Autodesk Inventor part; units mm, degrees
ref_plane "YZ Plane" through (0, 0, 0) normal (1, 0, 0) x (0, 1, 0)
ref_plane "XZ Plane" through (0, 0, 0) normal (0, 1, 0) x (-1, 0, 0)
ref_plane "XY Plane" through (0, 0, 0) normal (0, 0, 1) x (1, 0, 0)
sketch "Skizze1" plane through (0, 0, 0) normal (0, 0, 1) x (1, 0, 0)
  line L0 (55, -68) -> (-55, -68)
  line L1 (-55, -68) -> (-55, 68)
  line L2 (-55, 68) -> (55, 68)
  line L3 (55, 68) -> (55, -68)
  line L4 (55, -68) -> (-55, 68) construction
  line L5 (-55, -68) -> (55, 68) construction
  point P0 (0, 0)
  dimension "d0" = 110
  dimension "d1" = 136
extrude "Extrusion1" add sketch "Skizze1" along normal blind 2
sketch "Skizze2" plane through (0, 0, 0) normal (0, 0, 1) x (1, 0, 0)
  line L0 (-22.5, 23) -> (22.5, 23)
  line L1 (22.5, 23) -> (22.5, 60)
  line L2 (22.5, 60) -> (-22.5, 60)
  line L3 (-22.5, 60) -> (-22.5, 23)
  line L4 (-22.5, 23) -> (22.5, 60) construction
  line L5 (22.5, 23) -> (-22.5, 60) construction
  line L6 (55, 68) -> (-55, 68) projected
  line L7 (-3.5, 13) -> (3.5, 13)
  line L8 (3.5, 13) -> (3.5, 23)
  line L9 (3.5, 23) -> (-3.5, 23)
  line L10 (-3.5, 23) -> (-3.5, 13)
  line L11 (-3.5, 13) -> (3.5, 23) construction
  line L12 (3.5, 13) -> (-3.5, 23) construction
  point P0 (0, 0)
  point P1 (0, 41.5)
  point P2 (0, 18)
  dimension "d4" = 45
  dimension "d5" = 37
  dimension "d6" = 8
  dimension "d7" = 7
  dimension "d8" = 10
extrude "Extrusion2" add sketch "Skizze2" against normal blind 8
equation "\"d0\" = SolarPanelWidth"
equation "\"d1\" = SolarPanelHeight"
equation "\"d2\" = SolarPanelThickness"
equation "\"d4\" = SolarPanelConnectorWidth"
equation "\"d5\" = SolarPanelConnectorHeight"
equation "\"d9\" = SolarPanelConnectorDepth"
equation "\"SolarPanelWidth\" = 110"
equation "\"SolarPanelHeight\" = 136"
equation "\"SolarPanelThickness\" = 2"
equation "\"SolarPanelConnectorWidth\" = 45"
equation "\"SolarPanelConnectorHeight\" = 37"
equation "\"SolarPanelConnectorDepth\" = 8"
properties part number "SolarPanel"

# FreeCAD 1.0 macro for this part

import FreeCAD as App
import Part
import Sketcher


def add_polygon(sketch, points):
    """Adds a closed chain of lines whose ends are joined by coincident constraints."""
    first, n = sketch.GeometryCount, len(points)
    for a, b in zip(points, points[1:] + points[:1]):
        sketch.addGeometry(Part.LineSegment(App.Vector(*a, 0), App.Vector(*b, 0)), False)
    for i in range(n):
        sketch.addConstraint(Sketcher.Constraint("Coincident", first + i, 2, first + (i + 1) % n, 1))

doc = App.newDocument("Part")
body = doc.addObject("PartDesign::Body", "Body")

# Sketch on XY plane
sketch1 = doc.addObject("Sketcher::SketchObject", "Sketch")
body.addObject(sketch1)
sketch1.AttachmentSupport = (doc.XY_Plane, [""])
sketch1.MapMode = "FlatFace"
add_polygon(sketch1, [(-55, -68), (55, -68), (55, 68), (-55, 68)])  # lines 0-3
sketch1.addConstraint([
    Sketcher.Constraint("Horizontal", 0),
    Sketcher.Constraint("Vertical", 1),
    Sketcher.Constraint("Horizontal", 2),
    Sketcher.Constraint("Vertical", 3),
    Sketcher.Constraint("Symmetric", 0, 2, 2, 2, -1, 1),
    Sketcher.Constraint("DistanceX", 0, 1, 0, 2, 110.0),
    Sketcher.Constraint("DistanceY", 1, 1, 1, 2, 136.0),
])
pad1 = doc.addObject("PartDesign::Pad", "Pad")
body.addObject(pad1)
pad1.Profile = sketch1
pad1.Length = 2

# Sketch on XY plane
sketch2 = doc.addObject("Sketcher::SketchObject", "Sketch001")
body.addObject(sketch2)
sketch2.AttachmentSupport = (doc.XY_Plane, [""])
sketch2.MapMode = "FlatFace"
add_polygon(sketch2, [(-22, 60), (-22, 23), (-4, 23), (-4, 13), (4, 13), (4, 23), (22, 23), (22, 60)])  # lines 0-7
sketch2.addConstraint([
    Sketcher.Constraint("Vertical", 0),
    Sketcher.Constraint("Horizontal", 1),
    Sketcher.Constraint("Vertical", 2),
    Sketcher.Constraint("Horizontal", 3),
    Sketcher.Constraint("Vertical", 4),
    Sketcher.Constraint("Horizontal", 5),
    Sketcher.Constraint("Vertical", 6),
    Sketcher.Constraint("Horizontal", 7),
    Sketcher.Constraint("Symmetric", 1, 2, 4, 2, -2),
    Sketcher.Constraint("Equal", 1, 5),
    Sketcher.Constraint("DistanceX", 3, 1, 3, 2, 7.0),
    Sketcher.Constraint("DistanceX", 7, 2, 7, 1, 45.0),
    Sketcher.Constraint("DistanceY", 0, 2, 0, 1, 37.0),
    Sketcher.Constraint("DistanceY", 2, 2, 2, 1, 10.0),
    Sketcher.Constraint("DistanceY", -1, 1, 0, 2, 23.0),
])
pad2 = doc.addObject("PartDesign::Pad", "Pad001")
body.addObject(pad2)
pad2.Profile = sketch2
pad2.Length = 8
pad2.Reversed = True

doc.recompute()
